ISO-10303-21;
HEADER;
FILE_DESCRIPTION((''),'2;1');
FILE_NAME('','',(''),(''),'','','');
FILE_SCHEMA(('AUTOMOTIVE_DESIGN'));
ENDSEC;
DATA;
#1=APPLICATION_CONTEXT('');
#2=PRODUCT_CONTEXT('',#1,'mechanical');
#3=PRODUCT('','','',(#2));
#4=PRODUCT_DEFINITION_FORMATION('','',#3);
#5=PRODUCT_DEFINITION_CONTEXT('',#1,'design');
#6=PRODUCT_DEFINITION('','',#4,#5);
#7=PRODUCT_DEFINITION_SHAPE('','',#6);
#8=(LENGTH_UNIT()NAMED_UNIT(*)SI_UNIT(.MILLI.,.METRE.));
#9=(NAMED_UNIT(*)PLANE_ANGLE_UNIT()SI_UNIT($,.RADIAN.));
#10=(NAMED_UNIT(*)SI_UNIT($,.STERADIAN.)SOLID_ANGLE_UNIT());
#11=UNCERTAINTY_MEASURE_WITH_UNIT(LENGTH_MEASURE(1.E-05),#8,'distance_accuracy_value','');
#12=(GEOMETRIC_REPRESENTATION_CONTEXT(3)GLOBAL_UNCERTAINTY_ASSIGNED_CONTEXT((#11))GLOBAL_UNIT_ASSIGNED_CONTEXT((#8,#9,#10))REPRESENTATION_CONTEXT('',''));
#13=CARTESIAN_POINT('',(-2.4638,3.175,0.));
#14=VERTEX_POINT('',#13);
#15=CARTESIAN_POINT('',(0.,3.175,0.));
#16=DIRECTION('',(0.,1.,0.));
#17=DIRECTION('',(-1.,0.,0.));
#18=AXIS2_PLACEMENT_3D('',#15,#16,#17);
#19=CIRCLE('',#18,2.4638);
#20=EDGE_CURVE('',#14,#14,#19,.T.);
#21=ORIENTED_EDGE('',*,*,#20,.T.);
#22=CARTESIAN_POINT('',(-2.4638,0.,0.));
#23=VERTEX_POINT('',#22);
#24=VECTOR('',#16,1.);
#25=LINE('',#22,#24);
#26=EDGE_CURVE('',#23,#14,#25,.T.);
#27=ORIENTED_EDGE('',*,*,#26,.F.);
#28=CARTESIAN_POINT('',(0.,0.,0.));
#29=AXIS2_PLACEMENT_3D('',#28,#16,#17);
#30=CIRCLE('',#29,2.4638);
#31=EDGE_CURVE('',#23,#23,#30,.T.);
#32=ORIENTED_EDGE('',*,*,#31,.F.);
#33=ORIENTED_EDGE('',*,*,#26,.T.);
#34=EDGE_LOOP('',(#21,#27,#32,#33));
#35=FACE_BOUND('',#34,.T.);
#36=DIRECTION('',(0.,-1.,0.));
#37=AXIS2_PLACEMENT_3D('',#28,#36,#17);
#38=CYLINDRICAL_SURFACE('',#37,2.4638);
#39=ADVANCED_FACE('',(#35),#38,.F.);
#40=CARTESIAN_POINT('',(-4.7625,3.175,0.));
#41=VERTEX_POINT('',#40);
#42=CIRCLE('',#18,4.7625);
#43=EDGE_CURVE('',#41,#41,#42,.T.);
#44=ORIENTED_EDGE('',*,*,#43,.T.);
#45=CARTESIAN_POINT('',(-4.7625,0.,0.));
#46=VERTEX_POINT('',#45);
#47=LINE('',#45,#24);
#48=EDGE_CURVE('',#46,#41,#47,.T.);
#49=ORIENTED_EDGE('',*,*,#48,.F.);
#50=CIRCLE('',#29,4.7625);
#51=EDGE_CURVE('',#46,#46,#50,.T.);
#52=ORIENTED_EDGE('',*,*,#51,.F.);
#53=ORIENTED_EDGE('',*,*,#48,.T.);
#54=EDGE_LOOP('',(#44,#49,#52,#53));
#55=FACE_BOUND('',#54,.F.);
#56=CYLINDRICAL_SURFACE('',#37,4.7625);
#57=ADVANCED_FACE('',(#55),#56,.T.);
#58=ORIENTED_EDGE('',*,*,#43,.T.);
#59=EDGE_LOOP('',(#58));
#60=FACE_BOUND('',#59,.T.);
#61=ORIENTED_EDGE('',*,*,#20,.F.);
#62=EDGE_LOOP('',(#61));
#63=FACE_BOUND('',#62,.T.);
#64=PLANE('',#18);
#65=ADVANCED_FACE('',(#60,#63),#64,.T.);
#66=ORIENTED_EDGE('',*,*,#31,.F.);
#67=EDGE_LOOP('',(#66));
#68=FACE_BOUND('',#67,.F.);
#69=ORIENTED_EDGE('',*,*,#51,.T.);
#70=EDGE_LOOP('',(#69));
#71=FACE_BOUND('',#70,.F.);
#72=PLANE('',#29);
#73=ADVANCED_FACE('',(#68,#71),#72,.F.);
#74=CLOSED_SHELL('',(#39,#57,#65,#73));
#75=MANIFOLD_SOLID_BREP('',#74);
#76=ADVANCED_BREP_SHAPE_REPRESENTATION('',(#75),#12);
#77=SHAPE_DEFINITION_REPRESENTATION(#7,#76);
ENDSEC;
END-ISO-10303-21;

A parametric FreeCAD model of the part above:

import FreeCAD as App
import Part
import Sketcher
Q = App.Units.Quantity

doc = App.newDocument("Part")
body = doc.addObject("PartDesign::Body", "Body")

# Sketch on XZ plane
sketch1 = doc.addObject("Sketcher::SketchObject", "Sketch")
body.addObject(sketch1)
sketch1.AttachmentSupport = (doc.XZ_Plane, [""])
sketch1.MapMode = "FlatFace"
sketch1.addGeometry([
    Part.Circle(App.Vector(0, 0, 0), App.Vector(0, 0, 1), 4.8),
    Part.Circle(App.Vector(0, 0, 0), App.Vector(0, 0, 1), 2.5),
], False)
sketch1.addConstraint([
    Sketcher.Constraint("Coincident", 0, 3, -1, 1),
    Sketcher.Constraint("Coincident", 1, 3, -1, 1),
    Sketcher.Constraint("Diameter", 0, Q("0.375 in")),
    Sketcher.Constraint("Diameter", 1, Q("0.194 in")),
])
pad1 = doc.addObject("PartDesign::Pad", "Pad")
body.addObject(pad1)
pad1.Profile = sketch1
pad1.Length = Q("0.125 in")
pad1.Reversed = True

doc.recompute()
